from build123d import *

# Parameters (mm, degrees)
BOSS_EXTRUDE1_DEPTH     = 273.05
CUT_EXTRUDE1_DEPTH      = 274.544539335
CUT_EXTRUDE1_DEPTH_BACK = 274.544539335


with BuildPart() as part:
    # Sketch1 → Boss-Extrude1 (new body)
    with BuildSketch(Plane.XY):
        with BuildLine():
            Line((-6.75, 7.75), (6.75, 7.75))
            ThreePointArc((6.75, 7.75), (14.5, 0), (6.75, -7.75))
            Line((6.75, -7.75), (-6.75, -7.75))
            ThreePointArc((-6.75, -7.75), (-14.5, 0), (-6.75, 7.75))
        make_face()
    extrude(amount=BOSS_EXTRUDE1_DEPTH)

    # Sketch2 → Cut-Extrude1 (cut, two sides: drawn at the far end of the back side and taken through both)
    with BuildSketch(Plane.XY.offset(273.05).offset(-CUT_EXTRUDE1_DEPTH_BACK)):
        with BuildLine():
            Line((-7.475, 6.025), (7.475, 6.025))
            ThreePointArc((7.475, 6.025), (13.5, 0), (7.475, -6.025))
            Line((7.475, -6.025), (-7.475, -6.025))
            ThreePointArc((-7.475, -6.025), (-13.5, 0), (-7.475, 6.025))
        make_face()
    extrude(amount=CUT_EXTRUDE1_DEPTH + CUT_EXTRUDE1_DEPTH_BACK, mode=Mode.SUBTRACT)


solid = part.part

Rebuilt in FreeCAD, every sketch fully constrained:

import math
import FreeCAD as App
import Part
import Sketcher
from FreeCAD import Vector
Q = App.Units.Quantity

doc = App.newDocument("Part")
params = doc.addObject("Spreadsheet::Sheet", "Params")
for row, (alias, value) in enumerate([
    ("sketch1_radius", "7.75 mm"),
    ("sketch1_width", "13.5 mm"),
    ("pad1_length", "273.05 mm"),
    ("sketch2_width", "14.95 mm"),
], start=1):
    params.set(f"A{row}", alias)
    params.set(f"B{row}", "=" + value)
    params.setAlias(f"B{row}", alias)

body = doc.addObject("PartDesign::Body", "Body")

sketch1 = body.newObject("Sketcher::SketchObject", "Sketch")
sketch1.AttachmentSupport = (doc.getObject("XY_Plane"), [""])
sketch1.MapMode = "FlatFace"
sketch1.addGeometry(Part.LineSegment(Vector(7, 8, 0), Vector(-7, 8, 0)), False)
sketch1.addGeometry(Part.ArcOfCircle(Part.Circle(Vector(-7, 0, 0), Vector(0, 0, 1), 8), math.radians(90), math.radians(270)), False)
sketch1.addGeometry(Part.LineSegment(Vector(-7, -8, 0), Vector(7, -8, 0)), False)
sketch1.addGeometry(Part.ArcOfCircle(Part.Circle(Vector(7, 0, 0), Vector(0, 0, 1), 8), math.radians(-90), math.radians(90)), False)
sketch1.addConstraint(Sketcher.Constraint("Tangent", 0, 2, 1, 1))
sketch1.addConstraint(Sketcher.Constraint("Tangent", 1, 2, 2, 1))
sketch1.addConstraint(Sketcher.Constraint("Tangent", 2, 2, 3, 1))
sketch1.addConstraint(Sketcher.Constraint("Tangent", 3, 2, 0, 1))
sketch1.addConstraint(Sketcher.Constraint("Horizontal", 0))
sketch1.addConstraint(Sketcher.Constraint("Horizontal", 2))
sketch1.addConstraint(Sketcher.Constraint("Symmetric", 1, 3, 3, 3, -1, 1))
sketch1.addConstraint(Sketcher.Constraint("Radius", 1, Q("7.75 mm")))
sketch1.addConstraint(Sketcher.Constraint("DistanceX", 0, 2, 0, 1, Q("13.5 mm")))
sketch1.setExpression("Constraints[7]", "Params.sketch1_radius")
sketch1.setExpression("Constraints[8]", "Params.sketch1_width")
pad1 = body.newObject("PartDesign::Pad", "Pad")
pad1.Profile = sketch1
pad1.setExpression("Length", "Params.pad1_length")

sketch2 = body.newObject("Sketcher::SketchObject", "Sketch001")
sketch2.AttachmentSupport = (doc.getObject("XY_Plane"), [""])
sketch2.MapMode = "FlatFace"
sketch2.AttachmentOffset = App.Placement(Vector(0, 0, 273.05), App.Rotation())
sketch2.addGeometry(Part.LineSegment(Vector(7, 6, 0), Vector(-7, 6, 0)), False)
sketch2.addGeometry(Part.ArcOfCircle(Part.Circle(Vector(-7, 0, 0), Vector(0, 0, 1), 6), math.radians(90), math.radians(270)), False)
sketch2.addGeometry(Part.LineSegment(Vector(-7, -6, 0), Vector(7, -6, 0)), False)
sketch2.addGeometry(Part.ArcOfCircle(Part.Circle(Vector(7, 0, 0), Vector(0, 0, 1), 6), math.radians(-90), math.radians(90)), False)
sketch2.addConstraint(Sketcher.Constraint("Tangent", 0, 2, 1, 1))
sketch2.addConstraint(Sketcher.Constraint("Tangent", 1, 2, 2, 1))
sketch2.addConstraint(Sketcher.Constraint("Tangent", 2, 2, 3, 1))
sketch2.addConstraint(Sketcher.Constraint("Tangent", 3, 2, 0, 1))
sketch2.addConstraint(Sketcher.Constraint("Horizontal", 0))
sketch2.addConstraint(Sketcher.Constraint("Horizontal", 2))
sketch2.addConstraint(Sketcher.Constraint("Symmetric", 1, 3, 3, 3, -1, 1))
sketch2.addConstraint(Sketcher.Constraint("Radius", 1, Q("6.025 mm")))
sketch2.addConstraint(Sketcher.Constraint("DistanceX", 0, 2, 0, 1, Q("14.95 mm")))
sketch2.setExpression("Constraints[8]", "Params.sketch2_width")
pocket1 = body.newObject("PartDesign::Pocket", "Pocket")
pocket1.Profile = sketch2
pocket1.Type = "ThroughAll"
pocket1.Midplane = True

doc.recompute()
